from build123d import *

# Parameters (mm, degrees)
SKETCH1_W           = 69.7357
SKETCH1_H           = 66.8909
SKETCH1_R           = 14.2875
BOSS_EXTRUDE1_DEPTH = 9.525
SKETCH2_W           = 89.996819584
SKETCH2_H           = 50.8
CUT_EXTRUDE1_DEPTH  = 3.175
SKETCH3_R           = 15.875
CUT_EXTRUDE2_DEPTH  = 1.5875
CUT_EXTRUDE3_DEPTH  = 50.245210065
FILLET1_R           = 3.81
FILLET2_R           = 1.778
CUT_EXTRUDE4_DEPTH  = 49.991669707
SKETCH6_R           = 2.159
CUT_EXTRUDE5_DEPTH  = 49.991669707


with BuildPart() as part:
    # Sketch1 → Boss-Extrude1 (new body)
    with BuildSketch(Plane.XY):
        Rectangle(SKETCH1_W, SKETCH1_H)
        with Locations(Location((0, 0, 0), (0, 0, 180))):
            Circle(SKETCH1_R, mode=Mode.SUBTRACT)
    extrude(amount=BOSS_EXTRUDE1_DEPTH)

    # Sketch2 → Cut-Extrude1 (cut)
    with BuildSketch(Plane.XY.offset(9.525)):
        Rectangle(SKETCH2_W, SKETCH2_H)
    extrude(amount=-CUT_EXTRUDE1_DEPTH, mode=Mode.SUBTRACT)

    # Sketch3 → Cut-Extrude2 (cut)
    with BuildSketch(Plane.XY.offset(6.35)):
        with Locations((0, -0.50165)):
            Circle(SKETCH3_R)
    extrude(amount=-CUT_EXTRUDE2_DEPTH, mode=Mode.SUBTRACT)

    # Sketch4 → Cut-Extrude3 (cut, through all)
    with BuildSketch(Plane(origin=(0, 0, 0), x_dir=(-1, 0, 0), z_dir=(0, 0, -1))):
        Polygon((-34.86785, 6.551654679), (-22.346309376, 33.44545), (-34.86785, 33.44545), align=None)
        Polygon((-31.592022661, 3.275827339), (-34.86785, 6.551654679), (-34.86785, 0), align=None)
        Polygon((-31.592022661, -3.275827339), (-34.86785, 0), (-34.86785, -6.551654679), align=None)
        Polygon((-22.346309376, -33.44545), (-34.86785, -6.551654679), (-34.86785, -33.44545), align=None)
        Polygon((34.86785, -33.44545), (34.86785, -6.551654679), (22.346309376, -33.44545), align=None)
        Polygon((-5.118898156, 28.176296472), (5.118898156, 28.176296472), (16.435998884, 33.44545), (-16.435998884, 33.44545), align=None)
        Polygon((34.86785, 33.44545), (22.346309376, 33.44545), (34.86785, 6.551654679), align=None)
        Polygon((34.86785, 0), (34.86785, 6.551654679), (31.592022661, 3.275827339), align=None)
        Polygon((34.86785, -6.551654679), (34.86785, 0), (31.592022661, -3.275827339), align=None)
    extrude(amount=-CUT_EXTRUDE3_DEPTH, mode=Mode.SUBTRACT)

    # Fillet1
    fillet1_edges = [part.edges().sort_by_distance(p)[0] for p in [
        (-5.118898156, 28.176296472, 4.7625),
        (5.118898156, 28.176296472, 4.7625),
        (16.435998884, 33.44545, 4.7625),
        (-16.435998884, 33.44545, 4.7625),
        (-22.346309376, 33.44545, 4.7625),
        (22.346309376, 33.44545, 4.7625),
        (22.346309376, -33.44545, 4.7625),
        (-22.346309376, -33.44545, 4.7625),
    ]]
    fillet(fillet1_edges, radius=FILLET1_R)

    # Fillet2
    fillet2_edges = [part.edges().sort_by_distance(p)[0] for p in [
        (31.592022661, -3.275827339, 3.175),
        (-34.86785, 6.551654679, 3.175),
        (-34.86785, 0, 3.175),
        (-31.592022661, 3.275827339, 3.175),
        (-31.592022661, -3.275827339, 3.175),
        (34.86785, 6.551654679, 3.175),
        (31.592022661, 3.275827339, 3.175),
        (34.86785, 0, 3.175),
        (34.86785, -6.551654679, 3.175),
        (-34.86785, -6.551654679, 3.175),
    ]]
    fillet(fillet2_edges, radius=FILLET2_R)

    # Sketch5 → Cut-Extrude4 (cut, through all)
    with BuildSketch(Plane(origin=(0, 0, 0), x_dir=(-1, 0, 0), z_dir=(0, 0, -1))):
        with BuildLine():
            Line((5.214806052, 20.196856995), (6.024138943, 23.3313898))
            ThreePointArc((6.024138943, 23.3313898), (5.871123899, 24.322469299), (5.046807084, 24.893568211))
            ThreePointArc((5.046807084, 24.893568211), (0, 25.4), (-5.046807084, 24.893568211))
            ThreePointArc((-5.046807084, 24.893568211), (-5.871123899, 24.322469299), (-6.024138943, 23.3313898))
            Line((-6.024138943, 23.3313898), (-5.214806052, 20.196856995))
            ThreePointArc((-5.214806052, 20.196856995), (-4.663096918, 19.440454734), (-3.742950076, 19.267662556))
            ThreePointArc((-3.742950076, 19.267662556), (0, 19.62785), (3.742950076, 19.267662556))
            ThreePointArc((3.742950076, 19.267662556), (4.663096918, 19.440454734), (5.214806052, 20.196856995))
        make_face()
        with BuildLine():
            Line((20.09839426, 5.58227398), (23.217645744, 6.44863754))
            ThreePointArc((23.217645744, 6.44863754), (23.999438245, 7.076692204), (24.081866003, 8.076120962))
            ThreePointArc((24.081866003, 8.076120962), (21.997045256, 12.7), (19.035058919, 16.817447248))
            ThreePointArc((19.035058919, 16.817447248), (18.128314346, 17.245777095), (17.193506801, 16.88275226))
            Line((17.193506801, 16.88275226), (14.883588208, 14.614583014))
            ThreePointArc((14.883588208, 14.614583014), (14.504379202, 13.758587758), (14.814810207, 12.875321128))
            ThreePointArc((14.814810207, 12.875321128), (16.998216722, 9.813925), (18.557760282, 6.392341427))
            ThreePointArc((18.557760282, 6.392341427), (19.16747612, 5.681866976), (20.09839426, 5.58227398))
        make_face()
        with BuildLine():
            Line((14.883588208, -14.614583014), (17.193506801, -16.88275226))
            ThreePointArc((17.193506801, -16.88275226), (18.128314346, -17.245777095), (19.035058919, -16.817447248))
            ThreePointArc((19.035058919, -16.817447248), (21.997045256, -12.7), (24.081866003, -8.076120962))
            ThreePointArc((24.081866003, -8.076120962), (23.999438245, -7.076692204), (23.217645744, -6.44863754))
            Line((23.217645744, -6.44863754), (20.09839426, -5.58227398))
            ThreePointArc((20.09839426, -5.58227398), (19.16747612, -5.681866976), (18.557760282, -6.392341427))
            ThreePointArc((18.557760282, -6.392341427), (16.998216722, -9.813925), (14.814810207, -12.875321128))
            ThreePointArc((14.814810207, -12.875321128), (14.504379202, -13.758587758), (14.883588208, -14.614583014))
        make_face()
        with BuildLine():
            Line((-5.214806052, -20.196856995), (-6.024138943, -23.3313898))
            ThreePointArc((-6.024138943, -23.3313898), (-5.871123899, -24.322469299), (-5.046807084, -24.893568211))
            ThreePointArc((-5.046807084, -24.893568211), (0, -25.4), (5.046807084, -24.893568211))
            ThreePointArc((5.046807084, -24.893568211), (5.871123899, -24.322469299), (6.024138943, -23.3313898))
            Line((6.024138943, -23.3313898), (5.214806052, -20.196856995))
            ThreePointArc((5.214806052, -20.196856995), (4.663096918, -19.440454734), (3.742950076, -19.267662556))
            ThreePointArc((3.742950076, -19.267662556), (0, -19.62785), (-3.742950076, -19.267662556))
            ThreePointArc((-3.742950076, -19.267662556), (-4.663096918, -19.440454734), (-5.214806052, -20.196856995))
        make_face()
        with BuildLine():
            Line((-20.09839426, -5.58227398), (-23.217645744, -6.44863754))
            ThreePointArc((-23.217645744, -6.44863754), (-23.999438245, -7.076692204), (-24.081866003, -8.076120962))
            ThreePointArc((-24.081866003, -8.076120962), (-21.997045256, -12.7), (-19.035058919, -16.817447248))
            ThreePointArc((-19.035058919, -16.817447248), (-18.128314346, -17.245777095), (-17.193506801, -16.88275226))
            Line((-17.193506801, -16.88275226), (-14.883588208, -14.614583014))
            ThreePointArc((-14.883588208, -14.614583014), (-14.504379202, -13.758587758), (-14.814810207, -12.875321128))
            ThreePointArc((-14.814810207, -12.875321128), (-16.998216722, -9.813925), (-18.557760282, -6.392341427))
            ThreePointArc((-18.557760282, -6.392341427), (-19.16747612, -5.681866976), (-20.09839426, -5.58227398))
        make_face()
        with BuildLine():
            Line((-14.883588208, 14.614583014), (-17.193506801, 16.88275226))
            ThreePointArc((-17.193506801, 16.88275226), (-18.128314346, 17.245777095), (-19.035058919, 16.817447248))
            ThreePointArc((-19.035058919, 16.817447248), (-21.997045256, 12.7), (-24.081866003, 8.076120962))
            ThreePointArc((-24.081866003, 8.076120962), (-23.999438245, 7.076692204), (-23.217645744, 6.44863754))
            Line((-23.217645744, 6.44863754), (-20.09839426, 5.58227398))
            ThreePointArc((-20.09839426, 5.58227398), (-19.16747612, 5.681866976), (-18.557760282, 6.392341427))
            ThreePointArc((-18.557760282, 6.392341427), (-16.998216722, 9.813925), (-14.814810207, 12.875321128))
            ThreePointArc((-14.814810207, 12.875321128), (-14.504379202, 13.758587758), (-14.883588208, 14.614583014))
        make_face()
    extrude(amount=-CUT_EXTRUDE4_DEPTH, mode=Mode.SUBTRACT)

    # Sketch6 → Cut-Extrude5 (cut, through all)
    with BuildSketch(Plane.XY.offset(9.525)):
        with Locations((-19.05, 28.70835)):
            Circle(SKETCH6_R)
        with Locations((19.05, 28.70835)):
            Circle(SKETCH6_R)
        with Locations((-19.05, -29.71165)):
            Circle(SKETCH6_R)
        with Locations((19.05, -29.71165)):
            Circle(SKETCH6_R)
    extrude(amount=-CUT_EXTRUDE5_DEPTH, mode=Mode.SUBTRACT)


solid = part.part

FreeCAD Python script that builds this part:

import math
import FreeCAD as App
import Part
import Sketcher
Q = App.Units.Quantity


def edges_at(feature, points):
    """Names of the edges that pass closest to the given points."""
    edges = feature.Shape.Edges
    near = lambda p: min(range(len(edges)), key=lambda i: edges[i].distToShape(Part.Vertex(*p))[0])
    return sorted({f"Edge{near(p) + 1}" for p in points})


def add_polygon(sketch, points):
    """Adds a closed chain of lines whose ends are joined by coincident constraints."""
    first, n = sketch.GeometryCount, len(points)
    for a, b in zip(points, points[1:] + points[:1]):
        sketch.addGeometry(Part.LineSegment(App.Vector(*a, 0), App.Vector(*b, 0)), False)
    for i in range(n):
        sketch.addConstraint(Sketcher.Constraint("Coincident", first + i, 2, first + (i + 1) % n, 1))

doc = App.newDocument("Part")
body = doc.addObject("PartDesign::Body", "Body")

# Sketch on XY plane
sketch1 = body.newObject("Sketcher::SketchObject", "Sketch")
sketch1.AttachmentSupport = (doc.getObject("XY_Plane"), [""])
sketch1.MapMode = "FlatFace"
add_polygon(sketch1, [(-35, 33), (-35, -33), (35, -33), (35, 33)])  # lines 0-3
sketch1.addGeometry(Part.Circle(App.Vector(0, 0, 0), App.Vector(0, 0, 1), 14), False)  # 4
sketch1.addConstraint([
    Sketcher.Constraint("Vertical", 0),
    Sketcher.Constraint("Horizontal", 1),
    Sketcher.Constraint("Vertical", 2),
    Sketcher.Constraint("Horizontal", 3),
    Sketcher.Constraint("Coincident", 4, 3, -1, 1),
    Sketcher.Constraint("Symmetric", 0, 2, 2, 2, -1, 1),
    Sketcher.Constraint("Diameter", 4, Q("1.125 in")),
    Sketcher.Constraint("DistanceX", 1, 1, 1, 2, Q("2.7455 in")),
    Sketcher.Constraint("DistanceY", 0, 2, 0, 1, Q("2.6335 in")),
])
pad1 = body.newObject("PartDesign::Pad", "Pad")
pad1.Profile = sketch1
pad1.Length = Q("0.375 in")

# Sketch on XY plane
sketch2 = body.newObject("Sketcher::SketchObject", "Sketch001")
sketch2.AttachmentSupport = (doc.getObject("XY_Plane"), [""])
sketch2.MapMode = "FlatFace"
sketch2.AttachmentOffset = App.Placement(App.Vector(0, 0, 0.375 * 25.4), App.Rotation())
add_polygon(sketch2, [(-45, 25), (-45, -25), (45, -25), (45, 25)])  # lines 0-3
sketch2.addConstraint([
    Sketcher.Constraint("Vertical", 0),
    Sketcher.Constraint("Horizontal", 1),
    Sketcher.Constraint("Vertical", 2),
    Sketcher.Constraint("Horizontal", 3),
    Sketcher.Constraint("Symmetric", 0, 2, 2, 2, -1, 1),
    Sketcher.Constraint("DistanceY", 0, 2, 0, 1, Q("2 in")),
    Sketcher.Constraint("DistanceX", 1, 1, 1, 2, Q("89.99682 mm")),
])
pocket1 = body.newObject("PartDesign::Pocket", "Pocket")
pocket1.Profile = sketch2
pocket1.Length = Q("0.125 in")

# Sketch on XY plane
sketch3 = body.newObject("Sketcher::SketchObject", "Sketch002")
sketch3.AttachmentSupport = (doc.getObject("XY_Plane"), [""])
sketch3.MapMode = "FlatFace"
sketch3.AttachmentOffset = App.Placement(App.Vector(0, 0, 0.25 * 25.4), App.Rotation())
sketch3.addGeometry(Part.Circle(App.Vector(0, -1, 0), App.Vector(0, 0, 1), 16), False)
sketch3.addConstraint([
    Sketcher.Constraint("PointOnObject", 0, 3, -2),
    Sketcher.Constraint("Diameter", 0, Q("1.25 in")),
    Sketcher.Constraint("DistanceY", 0, 3, -1, 1, Q("0.50165 mm")),
])
pocket2 = body.newObject("PartDesign::Pocket", "Pocket001")
pocket2.Profile = sketch3
pocket2.Length = Q("0.0625 in")

# Sketch on XY plane
sketch4 = body.newObject("Sketcher::SketchObject", "Sketch003")
sketch4.AttachmentSupport = (doc.getObject("XY_Plane"), [""])
sketch4.MapMode = "FlatFace"
add_polygon(sketch4, [(34.9, 6.6), (22.3, 33.4), (34.9, 33.4)])  # lines 0-2
add_polygon(sketch4, [(31.6, 3.3), (34.9, 6.6), (34.9, 0)])  # lines 3-5
add_polygon(sketch4, [(31.6, -3.3), (34.9, 0), (34.9, -6.6)])  # lines 6-8
add_polygon(sketch4, [(22.3, -33.4), (34.9, -6.6), (34.9, -33.4)])  # lines 9-11
add_polygon(sketch4, [(-34.9, -33.4), (-34.9, -6.6), (-22.3, -33.4)])  # lines 12-14
add_polygon(sketch4, [(5.1, 28.2), (-5.1, 28.2), (-16.4, 33.4), (16.4, 33.4)])  # lines 15-18
add_polygon(sketch4, [(-34.9, 33.4), (-22.3, 33.4), (-34.9, 6.6)])  # lines 19-21
add_polygon(sketch4, [(-34.9, 0), (-34.9, 6.6), (-31.6, 3.3)])  # lines 22-24
add_polygon(sketch4, [(-34.9, -6.6), (-34.9, 0), (-31.6, -3.3)])  # lines 25-27
sketch4.addConstraint([
    Sketcher.Constraint("Horizontal", 1),
    Sketcher.Constraint("Vertical", 2),
    Sketcher.Constraint("Vertical", 4),
    Sketcher.Constraint("Vertical", 7),
    Sketcher.Constraint("Vertical", 10),
    Sketcher.Constraint("Horizontal", 11),
    Sketcher.Constraint("Vertical", 12),
    Sketcher.Constraint("Horizontal", 14),
    Sketcher.Constraint("Horizontal", 15),
    Sketcher.Constraint("Horizontal", 17),
    Sketcher.Constraint("Horizontal", 19),
    Sketcher.Constraint("Vertical", 21),
    Sketcher.Constraint("Vertical", 22),
    Sketcher.Constraint("Vertical", 25),
    Sketcher.Constraint("Coincident", 3, 2, 2, 2),
    Sketcher.Constraint("Coincident", 6, 2, 4, 2),
    Sketcher.Constraint("Coincident", 9, 2, 7, 2),
    Sketcher.Constraint("Coincident", 22, 2, 20, 2),
    Sketcher.Constraint("Coincident", 25, 2, 24, 2),
    Sketcher.Constraint("Coincident", 27, 2, 12, 2),
    Sketcher.Constraint("Symmetric", 2, 2, 12, 2, -1, 1),
    Sketcher.Constraint("Symmetric", 0, 2, 13, 2, -1, 1),
    Sketcher.Constraint("Symmetric", 11, 2, 19, 2, -1, 1),
    Sketcher.Constraint("Symmetric", 8, 2, 23, 2, -1, 1),
    Sketcher.Constraint("Symmetric", 5, 2, 26, 2, -1, 1),
    Sketcher.Constraint("Symmetric", 11, 2, 13, 2, -2),
    Sketcher.Constraint("Symmetric", 5, 2, 23, 2, -2),
    Sketcher.Constraint("PointOnObject", 4, 2, -1),
    Sketcher.Constraint("PointOnObject", 24, 2, -1),
    Sketcher.Constraint("Perpendicular", 3, 5),
    Sketcher.Constraint("Perpendicular", 5, 6),
    Sketcher.Constraint("Perpendicular", 6, 8),
    Sketcher.Constraint("Perpendicular", 9, 16),
    Sketcher.Constraint("Perpendicular", 13, 18),
    Sketcher.Constraint("Perpendicular", 16, 20),
    Sketcher.Constraint("Horizontal", 1, 2, 16, 2),
    Sketcher.Constraint("DistanceX", 12, 2, 7, 2, Q("2.7455 in")),
    Sketcher.Constraint("DistanceX", 1, 1, 1, 2, Q("12.521541 mm")),
    Sketcher.Constraint("DistanceX", 15, 2, -1, 1, Q("5.118898 mm")),
    Sketcher.Constraint("DistanceX", 16, 2, -1, 1, Q("16.435999 mm")),
    Sketcher.Constraint("DistanceX", -1, 1, 17, 2, Q("16.435999 mm")),
    Sketcher.Constraint("Distance", 3, Q("4.632719 mm")),
    Sketcher.Constraint("Distance", 16, Q("12.483619 mm")),
])
pocket3 = body.newObject("PartDesign::Pocket", "Pocket002")
pocket3.Profile = sketch4
pocket3.Type = "ThroughAll"
pocket3.Reversed = True
doc.recompute()

fillet = body.newObject("PartDesign::Fillet", "Fillet")
fillet.Base = (pocket3, edges_at(pocket3, [
    (-5.119, 28.176, 4.763),
    (5.119, 28.176, 4.763),
    (16.436, 33.445, 4.763),
    (-16.436, 33.445, 4.763),
    (-22.346, 33.445, 4.763),
    (22.346, 33.445, 4.763),
    (22.346, -33.445, 4.763),
    (-22.346, -33.445, 4.763),
]))
fillet.Radius = Q("0.15 in")
doc.recompute()

fillet2 = body.newObject("PartDesign::Fillet", "Fillet001")
fillet2.Base = (fillet, edges_at(fillet, [
    (31.592, -3.276, 3.175),
    (-34.868, 6.552, 3.175),
    (-34.868, 0, 3.175),
    (-31.592, 3.276, 3.175),
    (-31.592, -3.276, 3.175),
    (34.868, 6.552, 3.175),
    (31.592, 3.276, 3.175),
    (34.868, 0, 3.175),
    (34.868, -6.552, 3.175),
    (-34.868, -6.552, 3.175),
]))
fillet2.Radius = Q("0.07 in")

# Sketch on XY plane
sketch5 = body.newObject("Sketcher::SketchObject", "Sketch004")
sketch5.AttachmentSupport = (doc.getObject("XY_Plane"), [""])
sketch5.MapMode = "FlatFace"
sketch5.addGeometry([
    Part.LineSegment(App.Vector(-5.2, 20.2, 0), App.Vector(-6, 23.3, 0)),  # 0
    Part.ArcOfCircle(Part.Circle(App.Vector(-4.8, 23.6, 0), App.Vector(0, 0, 1), 1.3), math.radians(101), math.radians(194)),  # 1
    Part.ArcOfCircle(Part.Circle(App.Vector(0, 0, 0), App.Vector(0, 0, 1), 25.4), math.radians(79), math.radians(101)),  # 2
    Part.ArcOfCircle(Part.Circle(App.Vector(4.8, 23.6, 0), App.Vector(0, 0, 1), 1.3), math.radians(-14), math.radians(79)),  # 3
    Part.LineSegment(App.Vector(6, 23.3, 0), App.Vector(5.2, 20.2, 0)),  # 4
    Part.ArcOfCircle(Part.Circle(App.Vector(4, 20.5, 0), App.Vector(0, 0, 1), 1.3), math.radians(-101), math.radians(-14)),  # 5
    Part.ArcOfCircle(Part.Circle(App.Vector(0, 0, 0), App.Vector(0, 0, 1), 19.6), math.radians(79), math.radians(101)),  # 6
    Part.ArcOfCircle(Part.Circle(App.Vector(-4, 20.5, 0), App.Vector(0, 0, 1), 1.3), math.radians(-166), math.radians(-79)),  # 7
    Part.LineSegment(App.Vector(-20.1, 5.6, 0), App.Vector(-23.2, 6.4, 0)),  # 8
    Part.ArcOfCircle(Part.Circle(App.Vector(-22.9, 7.7, 0), App.Vector(0, 0, 1), 1.3), math.radians(161), math.radians(254)),  # 9
    Part.ArcOfCircle(Part.Circle(App.Vector(0, 0, 0), App.Vector(0, 0, 1), 25.4), math.radians(139), math.radians(161)),  # 10
    Part.ArcOfCircle(Part.Circle(App.Vector(-18.1, 16, 0), App.Vector(0, 0, 1), 1.3), math.radians(46), math.radians(139)),  # 11
    Part.LineSegment(App.Vector(-17.2, 16.9, 0), App.Vector(-14.9, 14.6, 0)),  # 12
    Part.ArcOfCircle(Part.Circle(App.Vector(-15.8, 13.7, 0), App.Vector(0, 0, 1), 1.3), math.radians(-41), math.radians(46)),  # 13
    Part.ArcOfCircle(Part.Circle(App.Vector(0, 0, 0), App.Vector(0, 0, 1), 19.6), math.radians(139), math.radians(161)),  # 14
    Part.ArcOfCircle(Part.Circle(App.Vector(-19.8, 6.8, 0), App.Vector(0, 0, 1), 1.3), math.radians(-106), math.radians(-19)),  # 15
    Part.LineSegment(App.Vector(-14.9, -14.6, 0), App.Vector(-17.2, -16.9, 0)),  # 16
    Part.ArcOfCircle(Part.Circle(App.Vector(-18.1, -16, 0), App.Vector(0, 0, 1), 1.3), math.radians(-139), math.radians(-46)),  # 17
    Part.ArcOfCircle(Part.Circle(App.Vector(0, 0, 0), App.Vector(0, 0, 1), 25.4), math.radians(-161), math.radians(-139)),  # 18
    Part.ArcOfCircle(Part.Circle(App.Vector(-22.9, -7.7, 0), App.Vector(0, 0, 1), 1.3), math.radians(106), math.radians(199)),  # 19
    Part.LineSegment(App.Vector(-23.2, -6.4, 0), App.Vector(-20.1, -5.6, 0)),  # 20
    Part.ArcOfCircle(Part.Circle(App.Vector(-19.8, -6.8, 0), App.Vector(0, 0, 1), 1.3), math.radians(19), math.radians(106)),  # 21
    Part.ArcOfCircle(Part.Circle(App.Vector(0, 0, 0), App.Vector(0, 0, 1), 19.6), math.radians(-161), math.radians(-139)),  # 22
    Part.ArcOfCircle(Part.Circle(App.Vector(-15.8, -13.7, 0), App.Vector(0, 0, 1), 1.3), math.radians(-46), math.radians(41)),  # 23
    Part.LineSegment(App.Vector(5.2, -20.2, 0), App.Vector(6, -23.3, 0)),  # 24
    Part.ArcOfCircle(Part.Circle(App.Vector(4.8, -23.6, 0), App.Vector(0, 0, 1), 1.3), math.radians(-79), math.radians(14)),  # 25
    Part.ArcOfCircle(Part.Circle(App.Vector(0, 0, 0), App.Vector(0, 0, 1), 25.4), math.radians(-101), math.radians(-79)),  # 26
    Part.ArcOfCircle(Part.Circle(App.Vector(-4.8, -23.6, 0), App.Vector(0, 0, 1), 1.3), math.radians(166), math.radians(259)),  # 27
    Part.LineSegment(App.Vector(-6, -23.3, 0), App.Vector(-5.2, -20.2, 0)),  # 28
    Part.ArcOfCircle(Part.Circle(App.Vector(-4, -20.5, 0), App.Vector(0, 0, 1), 1.3), math.radians(79), math.radians(166)),  # 29
    Part.ArcOfCircle(Part.Circle(App.Vector(0, 0, 0), App.Vector(0, 0, 1), 19.6), math.radians(-101), math.radians(-79)),  # 30
    Part.ArcOfCircle(Part.Circle(App.Vector(4, -20.5, 0), App.Vector(0, 0, 1), 1.3), math.radians(14), math.radians(101)),  # 31
    Part.LineSegment(App.Vector(20.1, -5.6, 0), App.Vector(23.2, -6.4, 0)),  # 32
    Part.ArcOfCircle(Part.Circle(App.Vector(22.9, -7.7, 0), App.Vector(0, 0, 1), 1.3), math.radians(-19), math.radians(74)),  # 33
    Part.ArcOfCircle(Part.Circle(App.Vector(0, 0, 0), App.Vector(0, 0, 1), 25.4), math.radians(-41), math.radians(-19)),  # 34
    Part.ArcOfCircle(Part.Circle(App.Vector(18.1, -16, 0), App.Vector(0, 0, 1), 1.3), math.radians(-134), math.radians(-41)),  # 35
    Part.LineSegment(App.Vector(17.2, -16.9, 0), App.Vector(14.9, -14.6, 0)),  # 36
    Part.ArcOfCircle(Part.Circle(App.Vector(15.8, -13.7, 0), App.Vector(0, 0, 1), 1.3), math.radians(139), math.radians(226)),  # 37
    Part.ArcOfCircle(Part.Circle(App.Vector(0, 0, 0), App.Vector(0, 0, 1), 19.6), math.radians(-41), math.radians(-19)),  # 38
    Part.ArcOfCircle(Part.Circle(App.Vector(19.8, -6.8, 0), App.Vector(0, 0, 1), 1.3), math.radians(74), math.radians(161)),  # 39
    Part.LineSegment(App.Vector(14.9, 14.6, 0), App.Vector(17.2, 16.9, 0)),  # 40
    Part.ArcOfCircle(Part.Circle(App.Vector(18.1, 16, 0), App.Vector(0, 0, 1), 1.3), math.radians(41), math.radians(134)),  # 41
    Part.ArcOfCircle(Part.Circle(App.Vector(0, 0, 0), App.Vector(0, 0, 1), 25.4), math.radians(19), math.radians(41)),  # 42
    Part.ArcOfCircle(Part.Circle(App.Vector(22.9, 7.7, 0), App.Vector(0, 0, 1), 1.3), math.radians(-74), math.radians(19)),  # 43
    Part.LineSegment(App.Vector(23.2, 6.4, 0), App.Vector(20.1, 5.6, 0)),  # 44
    Part.ArcOfCircle(Part.Circle(App.Vector(19.8, 6.8, 0), App.Vector(0, 0, 1), 1.3), math.radians(-161), math.radians(-74)),  # 45
    Part.ArcOfCircle(Part.Circle(App.Vector(0, 0, 0), App.Vector(0, 0, 1), 19.6), math.radians(19), math.radians(41)),  # 46
    Part.ArcOfCircle(Part.Circle(App.Vector(15.8, 13.7, 0), App.Vector(0, 0, 1), 1.3), math.radians(134), math.radians(221)),  # 47
], False)
sketch5.addConstraint([
    Sketcher.Constraint("Tangent", 0, 2, 1, 2),
    Sketcher.Constraint("Tangent", 1, 1, 2, 2),
    Sketcher.Constraint("Tangent", 2, 1, 3, 2),
    Sketcher.Constraint("Tangent", 3, 1, 4, 1),
    Sketcher.Constraint("Tangent", 4, 2, 5, 2),
    Sketcher.Constraint("Tangent", 5, 1, 6, 1),
    Sketcher.Constraint("Tangent", 6, 2, 7, 2),
    Sketcher.Constraint("Tangent", 7, 1, 0, 1),
    Sketcher.Constraint("Tangent", 8, 2, 9, 2),
    Sketcher.Constraint("Tangent", 9, 1, 10, 2),
    Sketcher.Constraint("Tangent", 10, 1, 11, 2),
    Sketcher.Constraint("Tangent", 11, 1, 12, 1),
    Sketcher.Constraint("Tangent", 12, 2, 13, 2),
    Sketcher.Constraint("Tangent", 13, 1, 14, 1),
    Sketcher.Constraint("Tangent", 14, 2, 15, 2),
    Sketcher.Constraint("Tangent", 15, 1, 8, 1),
    Sketcher.Constraint("Tangent", 16, 2, 17, 2),
    Sketcher.Constraint("Tangent", 17, 1, 18, 2),
    Sketcher.Constraint("Tangent", 18, 1, 19, 2),
    Sketcher.Constraint("Tangent", 19, 1, 20, 1),
    Sketcher.Constraint("Tangent", 20, 2, 21, 2),
    Sketcher.Constraint("Tangent", 21, 1, 22, 1),
    Sketcher.Constraint("Tangent", 22, 2, 23, 2),
    Sketcher.Constraint("Tangent", 23, 1, 16, 1),
    Sketcher.Constraint("Tangent", 24, 2, 25, 2),
    Sketcher.Constraint("Tangent", 25, 1, 26, 2),
    Sketcher.Constraint("Tangent", 26, 1, 27, 2),
    Sketcher.Constraint("Tangent", 27, 1, 28, 1),
    Sketcher.Constraint("Tangent", 28, 2, 29, 2),
    Sketcher.Constraint("Tangent", 29, 1, 30, 1),
    Sketcher.Constraint("Tangent", 30, 2, 31, 2),
    Sketcher.Constraint("Tangent", 31, 1, 24, 1),
    Sketcher.Constraint("Tangent", 32, 2, 33, 2),
    Sketcher.Constraint("Tangent", 33, 1, 34, 2),
    Sketcher.Constraint("Tangent", 34, 1, 35, 2),
    Sketcher.Constraint("Tangent", 35, 1, 36, 1),
    Sketcher.Constraint("Tangent", 36, 2, 37, 2),
    Sketcher.Constraint("Tangent", 37, 1, 38, 1),
    Sketcher.Constraint("Tangent", 38, 2, 39, 2),
    Sketcher.Constraint("Tangent", 39, 1, 32, 1),
    Sketcher.Constraint("Tangent", 40, 2, 41, 2),
    Sketcher.Constraint("Tangent", 41, 1, 42, 2),
    Sketcher.Constraint("Tangent", 42, 1, 43, 2),
    Sketcher.Constraint("Tangent", 43, 1, 44, 1),
    Sketcher.Constraint("Tangent", 44, 2, 45, 2),
    Sketcher.Constraint("Tangent", 45, 1, 46, 1),
    Sketcher.Constraint("Tangent", 46, 2, 47, 2),
    Sketcher.Constraint("Tangent", 47, 1, 40, 1),
    Sketcher.Constraint("Coincident", 2, 3, -1, 1),
    Sketcher.Constraint("Coincident", 6, 3, -1, 1),
    Sketcher.Constraint("Coincident", 10, 3, -1, 1),
    Sketcher.Constraint("Coincident", 14, 3, -1, 1),
    Sketcher.Constraint("Coincident", 18, 3, -1, 1),
    Sketcher.Constraint("Coincident", 22, 3, -1, 1),
    Sketcher.Constraint("Coincident", 26, 3, -1, 1),
    Sketcher.Constraint("Coincident", 30, 3, -1, 1),
    Sketcher.Constraint("Coincident", 34, 3, -1, 1),
    Sketcher.Constraint("Coincident", 38, 3, -1, 1),
    Sketcher.Constraint("Coincident", 42, 3, -1, 1),
    Sketcher.Constraint("Coincident", 46, 3, -1, 1),
    Sketcher.Constraint("Equal", 1, 3),
    Sketcher.Constraint("Equal", 3, 5),
    Sketcher.Constraint("Equal", 5, 7),
    Sketcher.Constraint("Equal", 7, 9),
    Sketcher.Constraint("Equal", 2, 10),
    Sketcher.Constraint("Equal", 9, 11),
    Sketcher.Constraint("Equal", 11, 13),
    Sketcher.Constraint("Equal", 6, 14),
    Sketcher.Constraint("Equal", 13, 15),
    Sketcher.Constraint("Equal", 15, 17),
    Sketcher.Constraint("Equal", 10, 18),
    Sketcher.Constraint("Equal", 17, 19),
    Sketcher.Constraint("Equal", 19, 21),
    Sketcher.Constraint("Equal", 14, 22),
    Sketcher.Constraint("Equal", 21, 23),
    Sketcher.Constraint("Equal", 23, 25),
    Sketcher.Constraint("Equal", 18, 26),
    Sketcher.Constraint("Equal", 25, 27),
    Sketcher.Constraint("Equal", 27, 29),
    Sketcher.Constraint("Equal", 22, 30),
    Sketcher.Constraint("Equal", 29, 31),
    Sketcher.Constraint("Equal", 31, 33),
    Sketcher.Constraint("Equal", 26, 34),
    Sketcher.Constraint("Equal", 33, 35),
    Sketcher.Constraint("Equal", 35, 37),
    Sketcher.Constraint("Equal", 30, 38),
    Sketcher.Constraint("Equal", 37, 39),
    Sketcher.Constraint("Equal", 39, 41),
    Sketcher.Constraint("Equal", 34, 42),
    Sketcher.Constraint("Equal", 41, 43),
    Sketcher.Constraint("Equal", 43, 45),
    Sketcher.Constraint("Equal", 38, 46),
    Sketcher.Constraint("Equal", 45, 47),
    Sketcher.Constraint("Symmetric", 0, 2, 24, 2, -1, 1),
    Sketcher.Constraint("Symmetric", 3, 1, 27, 1, -1, 1),
    Sketcher.Constraint("Symmetric", 8, 2, 32, 2, -1, 1),
    Sketcher.Constraint("Symmetric", 11, 1, 35, 1, -1, 1),
    Sketcher.Constraint("Symmetric", 16, 2, 40, 2, -1, 1),
    Sketcher.Constraint("Symmetric", 19, 1, 43, 1, -1, 1),
    Sketcher.Constraint("Symmetric", 0, 2, 3, 1, -2),
    Sketcher.Constraint("Symmetric", 19, 1, 32, 2, -2),
    Sketcher.Constraint("Symmetric", 16, 2, 35, 1, -2),
    Sketcher.Constraint("Equal", 4, 8),
    Sketcher.Constraint("Equal", 8, 12),
    Sketcher.Constraint("Radius", 2, Q("1 in")),
    Sketcher.Constraint("Radius", 1, Q("0.05 in")),
    Sketcher.Constraint("Radius", 6, Q("19.62785 mm")),
    Sketcher.Constraint("Distance", 0, Q("3.237332 mm")),
    Sketcher.Constraint("DistanceY", -1, 1, 1, 3, Q("23.64889 mm")),
    Sketcher.Constraint("DistanceX", 15, 3, -1, 1, Q("19.758521 mm")),
    Sketcher.Constraint("DistanceX", 10, 1, -1, 1, Q("19.035059 mm")),
])
pocket4 = body.newObject("PartDesign::Pocket", "Pocket003")
pocket4.Profile = sketch5
pocket4.Type = "ThroughAll"
pocket4.Reversed = True

# Sketch on XY plane
sketch6 = body.newObject("Sketcher::SketchObject", "Sketch005")
sketch6.AttachmentSupport = (doc.getObject("XY_Plane"), [""])
sketch6.MapMode = "FlatFace"
sketch6.AttachmentOffset = App.Placement(App.Vector(0, 0, 0.375 * 25.4), App.Rotation())
sketch6.addGeometry([
    Part.Circle(App.Vector(-19.1, 28.7, 0), App.Vector(0, 0, 1), 2.2),
    Part.Circle(App.Vector(19.1, 28.7, 0), App.Vector(0, 0, 1), 2.2),
    Part.Circle(App.Vector(-19.1, -29.7, 0), App.Vector(0, 0, 1), 2.2),
    Part.Circle(App.Vector(19.1, -29.7, 0), App.Vector(0, 0, 1), 2.2),
], False)
sketch6.addConstraint([
    Sketcher.Constraint("Equal", 0, 1),
    Sketcher.Constraint("Equal", 1, 2),
    Sketcher.Constraint("Equal", 2, 3),
    Sketcher.Constraint("Symmetric", 0, 3, 1, 3, -2),
    Sketcher.Constraint("Symmetric", 2, 3, 3, 3, -2),
    Sketcher.Constraint("Vertical", 0, 3, 2, 3),
    Sketcher.Constraint("Diameter", 0, Q("0.17 in")),
    Sketcher.Constraint("DistanceX", 0, 3, 1, 3, Q("1.5 in")),
    Sketcher.Constraint("DistanceY", 2, 3, 0, 3, Q("2.3 in")),
    Sketcher.Constraint("DistanceY", -1, 1, 0, 3, Q("28.70835 mm")),
])
pocket5 = body.newObject("PartDesign::Pocket", "Pocket004")
pocket5.Profile = sketch6
pocket5.Type = "ThroughAll"

doc.recompute()
